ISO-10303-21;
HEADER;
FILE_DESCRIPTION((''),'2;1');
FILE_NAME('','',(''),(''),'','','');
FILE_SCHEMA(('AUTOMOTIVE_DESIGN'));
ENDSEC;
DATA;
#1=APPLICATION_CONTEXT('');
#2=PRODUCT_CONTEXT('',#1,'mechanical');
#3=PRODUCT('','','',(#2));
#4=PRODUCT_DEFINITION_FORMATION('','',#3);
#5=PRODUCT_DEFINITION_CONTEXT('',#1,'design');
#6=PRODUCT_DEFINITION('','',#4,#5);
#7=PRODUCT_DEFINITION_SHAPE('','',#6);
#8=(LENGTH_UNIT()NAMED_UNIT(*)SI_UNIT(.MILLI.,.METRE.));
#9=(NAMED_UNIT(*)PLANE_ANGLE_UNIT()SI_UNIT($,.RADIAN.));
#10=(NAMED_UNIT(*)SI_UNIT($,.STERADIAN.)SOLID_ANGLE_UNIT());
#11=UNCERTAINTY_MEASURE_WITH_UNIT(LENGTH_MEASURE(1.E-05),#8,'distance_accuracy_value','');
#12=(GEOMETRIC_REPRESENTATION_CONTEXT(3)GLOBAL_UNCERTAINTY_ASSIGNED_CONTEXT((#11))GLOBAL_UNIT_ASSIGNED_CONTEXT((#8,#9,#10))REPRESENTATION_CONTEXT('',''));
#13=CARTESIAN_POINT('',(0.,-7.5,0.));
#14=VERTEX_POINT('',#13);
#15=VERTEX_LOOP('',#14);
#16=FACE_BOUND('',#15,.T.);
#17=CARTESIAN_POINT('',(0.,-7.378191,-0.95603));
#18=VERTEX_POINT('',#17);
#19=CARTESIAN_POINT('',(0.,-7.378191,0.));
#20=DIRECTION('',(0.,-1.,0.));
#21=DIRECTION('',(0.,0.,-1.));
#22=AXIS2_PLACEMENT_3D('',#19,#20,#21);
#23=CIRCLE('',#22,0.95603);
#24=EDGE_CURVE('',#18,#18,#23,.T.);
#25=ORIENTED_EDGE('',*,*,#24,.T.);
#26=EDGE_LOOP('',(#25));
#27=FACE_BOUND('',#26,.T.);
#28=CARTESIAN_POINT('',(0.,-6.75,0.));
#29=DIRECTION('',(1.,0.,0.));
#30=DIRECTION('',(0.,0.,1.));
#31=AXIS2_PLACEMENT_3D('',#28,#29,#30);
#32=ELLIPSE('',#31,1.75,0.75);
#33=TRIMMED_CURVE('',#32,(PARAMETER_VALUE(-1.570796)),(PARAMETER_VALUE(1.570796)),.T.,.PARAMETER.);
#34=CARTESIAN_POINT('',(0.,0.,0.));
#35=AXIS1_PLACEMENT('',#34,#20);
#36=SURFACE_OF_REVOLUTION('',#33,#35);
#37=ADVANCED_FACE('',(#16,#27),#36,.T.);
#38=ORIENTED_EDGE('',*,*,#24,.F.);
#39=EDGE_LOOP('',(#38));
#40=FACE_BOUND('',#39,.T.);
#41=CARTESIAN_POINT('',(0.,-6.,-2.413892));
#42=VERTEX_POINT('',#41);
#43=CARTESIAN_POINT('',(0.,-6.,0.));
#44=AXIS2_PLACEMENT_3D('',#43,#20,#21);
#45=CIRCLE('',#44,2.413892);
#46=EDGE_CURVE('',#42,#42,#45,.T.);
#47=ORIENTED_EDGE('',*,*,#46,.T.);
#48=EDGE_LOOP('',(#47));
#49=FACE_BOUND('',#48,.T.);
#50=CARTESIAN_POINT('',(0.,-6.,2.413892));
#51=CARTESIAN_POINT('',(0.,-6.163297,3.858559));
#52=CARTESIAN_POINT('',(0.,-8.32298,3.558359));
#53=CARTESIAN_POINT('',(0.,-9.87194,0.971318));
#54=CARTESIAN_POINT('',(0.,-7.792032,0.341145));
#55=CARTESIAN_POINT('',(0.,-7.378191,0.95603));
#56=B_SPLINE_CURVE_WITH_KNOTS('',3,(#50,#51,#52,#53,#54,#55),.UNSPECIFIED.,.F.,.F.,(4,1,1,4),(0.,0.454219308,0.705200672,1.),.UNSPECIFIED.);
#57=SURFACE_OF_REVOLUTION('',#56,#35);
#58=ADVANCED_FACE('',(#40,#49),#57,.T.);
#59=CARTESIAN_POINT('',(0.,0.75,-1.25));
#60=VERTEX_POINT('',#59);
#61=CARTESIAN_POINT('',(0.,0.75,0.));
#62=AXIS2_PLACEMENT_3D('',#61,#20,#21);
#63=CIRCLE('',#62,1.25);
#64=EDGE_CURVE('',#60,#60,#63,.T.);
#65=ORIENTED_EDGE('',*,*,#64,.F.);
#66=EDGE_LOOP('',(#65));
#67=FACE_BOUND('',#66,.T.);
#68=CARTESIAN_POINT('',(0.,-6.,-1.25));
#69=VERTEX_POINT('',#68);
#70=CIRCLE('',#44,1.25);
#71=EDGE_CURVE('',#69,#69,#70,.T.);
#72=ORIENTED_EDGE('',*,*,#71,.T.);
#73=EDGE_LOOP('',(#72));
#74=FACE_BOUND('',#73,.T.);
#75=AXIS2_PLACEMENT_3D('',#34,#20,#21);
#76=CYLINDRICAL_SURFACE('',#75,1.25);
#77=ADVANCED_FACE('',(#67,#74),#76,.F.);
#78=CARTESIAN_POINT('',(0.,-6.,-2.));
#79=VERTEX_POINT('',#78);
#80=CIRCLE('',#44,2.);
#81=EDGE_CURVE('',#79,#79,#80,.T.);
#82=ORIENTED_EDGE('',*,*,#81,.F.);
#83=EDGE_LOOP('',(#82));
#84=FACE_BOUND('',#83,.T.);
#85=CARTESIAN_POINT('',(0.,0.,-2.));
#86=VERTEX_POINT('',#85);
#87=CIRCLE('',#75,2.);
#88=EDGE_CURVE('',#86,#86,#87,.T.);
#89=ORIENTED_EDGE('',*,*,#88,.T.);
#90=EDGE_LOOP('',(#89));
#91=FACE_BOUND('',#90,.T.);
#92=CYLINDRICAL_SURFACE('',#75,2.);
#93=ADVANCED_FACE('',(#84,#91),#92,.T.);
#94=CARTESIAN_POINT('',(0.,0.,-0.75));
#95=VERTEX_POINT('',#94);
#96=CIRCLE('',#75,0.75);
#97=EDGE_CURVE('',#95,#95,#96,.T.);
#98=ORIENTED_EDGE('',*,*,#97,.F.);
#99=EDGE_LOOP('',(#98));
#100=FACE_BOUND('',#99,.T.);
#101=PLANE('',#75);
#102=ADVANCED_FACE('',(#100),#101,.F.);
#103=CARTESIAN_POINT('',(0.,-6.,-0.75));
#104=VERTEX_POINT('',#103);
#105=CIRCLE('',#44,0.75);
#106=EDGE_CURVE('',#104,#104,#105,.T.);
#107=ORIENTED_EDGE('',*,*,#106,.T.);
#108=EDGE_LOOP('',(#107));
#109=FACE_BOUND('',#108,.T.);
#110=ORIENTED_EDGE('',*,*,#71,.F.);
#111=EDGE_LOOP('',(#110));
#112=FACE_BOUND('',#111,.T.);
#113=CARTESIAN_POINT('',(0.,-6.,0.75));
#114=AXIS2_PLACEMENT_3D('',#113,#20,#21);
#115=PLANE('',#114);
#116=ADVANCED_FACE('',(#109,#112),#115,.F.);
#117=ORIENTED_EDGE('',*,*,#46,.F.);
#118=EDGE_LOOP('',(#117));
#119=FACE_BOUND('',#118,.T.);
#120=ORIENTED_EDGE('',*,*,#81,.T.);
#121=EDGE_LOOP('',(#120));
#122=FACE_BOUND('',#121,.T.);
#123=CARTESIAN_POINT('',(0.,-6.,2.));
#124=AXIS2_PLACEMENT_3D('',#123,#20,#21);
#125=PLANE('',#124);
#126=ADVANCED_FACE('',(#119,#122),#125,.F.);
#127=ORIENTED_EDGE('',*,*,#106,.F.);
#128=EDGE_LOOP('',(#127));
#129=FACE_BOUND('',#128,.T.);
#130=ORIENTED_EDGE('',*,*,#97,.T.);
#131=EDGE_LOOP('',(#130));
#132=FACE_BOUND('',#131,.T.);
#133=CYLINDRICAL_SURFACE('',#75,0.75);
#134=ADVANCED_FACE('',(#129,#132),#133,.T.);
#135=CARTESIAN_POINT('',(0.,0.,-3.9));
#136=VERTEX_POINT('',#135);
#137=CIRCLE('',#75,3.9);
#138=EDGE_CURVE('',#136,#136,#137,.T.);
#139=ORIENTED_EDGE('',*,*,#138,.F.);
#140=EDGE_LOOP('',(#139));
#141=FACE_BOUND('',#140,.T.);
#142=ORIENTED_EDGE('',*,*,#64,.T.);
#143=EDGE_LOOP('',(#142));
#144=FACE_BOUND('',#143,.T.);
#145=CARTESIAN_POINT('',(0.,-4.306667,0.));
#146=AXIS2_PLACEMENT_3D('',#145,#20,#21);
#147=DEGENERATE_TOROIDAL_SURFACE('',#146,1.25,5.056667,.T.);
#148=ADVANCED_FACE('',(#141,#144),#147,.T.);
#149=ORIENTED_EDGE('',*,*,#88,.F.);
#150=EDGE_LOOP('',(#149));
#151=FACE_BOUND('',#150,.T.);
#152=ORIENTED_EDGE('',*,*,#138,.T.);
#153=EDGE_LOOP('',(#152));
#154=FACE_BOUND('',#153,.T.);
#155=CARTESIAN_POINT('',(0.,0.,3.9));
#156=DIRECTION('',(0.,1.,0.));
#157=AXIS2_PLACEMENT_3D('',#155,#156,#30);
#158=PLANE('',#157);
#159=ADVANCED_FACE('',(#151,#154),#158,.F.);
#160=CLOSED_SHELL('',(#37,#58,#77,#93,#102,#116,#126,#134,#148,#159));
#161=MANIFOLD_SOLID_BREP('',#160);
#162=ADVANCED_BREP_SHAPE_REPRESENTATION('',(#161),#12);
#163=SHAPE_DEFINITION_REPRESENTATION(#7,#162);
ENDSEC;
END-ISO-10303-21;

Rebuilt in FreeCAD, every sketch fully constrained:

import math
import FreeCAD as App
import Part
import Sketcher

doc = App.newDocument("Part")
params = doc.addObject("Spreadsheet::Sheet", "Params")
for row, (alias, value) in enumerate([
    ("sketch1_height", "0.5 mm"),
    ("sketch1_height2", "1.9 mm"),
    ("sketch1_width", "6.75 mm"),
    ("sketch1_height3", "0.75 mm"),
    ("revolution_angle", "360 deg"),
], start=1):
    params.set(f"A{row}", alias)
    params.set(f"B{row}", "=" + value)
    params.setAlias(f"B{row}", alias)

body = doc.addObject("PartDesign::Body", "Body")

sketch1 = body.newObject("Sketcher::SketchObject", "Sketch")
sketch1.AttachmentSupport = (doc.getObject("YZ_Plane"), [""])
sketch1.MapMode = "FlatFace"
sketch1.addGeometry([
    Part.LineSegment(App.Vector(-7.5, 0, 0), App.Vector(0, 0, 0)),
    Part.LineSegment(App.Vector(0, 0, 0), App.Vector(0, 0.75, 0)),
    Part.LineSegment(App.Vector(0, 0.75, 0), App.Vector(-6, 0.75, 0)),
    Part.LineSegment(App.Vector(-6, 0.75, 0), App.Vector(-6, 1.25, 0)),
    Part.LineSegment(App.Vector(-6, 1.25, 0), App.Vector(0.75, 1.25, 0)),
    Part.ArcOfCircle(Part.Circle(App.Vector(-4.306667, 1.25, 0), App.Vector(0, 0, 1), 5.056667), math.radians(0), math.radians(31.605028)),
    Part.LineSegment(App.Vector(0, 3.9, 0), App.Vector(0, 2, 0)),
    Part.LineSegment(App.Vector(0, 2, 0), App.Vector(-6, 2, 0)),
    Part.LineSegment(App.Vector(-6, 2, 0), App.Vector(-6, 2.413892, 0)),
    Part.BSplineCurve([App.Vector(-6, 2.413892, 0), App.Vector(-6.163297, 3.858559, 0), App.Vector(-8.32298, 3.558359, 0), App.Vector(-9.87194, 0.971318, 0), App.Vector(-7.792032, 0.341145, 0), App.Vector(-7.378191, 0.95603, 0)], [4, 1, 1, 4], [0, 0.454219308, 0.705200672, 1], False, 3, [1, 1, 1, 1, 1, 1], False),
    Part.BSplineCurve([App.Vector(-7.378191, 0.95603, 0), App.Vector(-7.5, 0.520264, 0), App.Vector(-7.5, 0, 0)], [3, 3], [0.992852221, 1.570796327], False, 2, [1, 0.958537313, 1], False),
], False)
sketch1.addConstraint([
    Sketcher.Constraint("Block", 9),
    Sketcher.Constraint("Block", 10),
    Sketcher.Constraint("Coincident", 0, 2, 1, 1),
    Sketcher.Constraint("Coincident", 1, 2, 2, 1),
    Sketcher.Constraint("Coincident", 2, 2, 3, 1),
    Sketcher.Constraint("Coincident", 3, 2, 4, 1),
    Sketcher.Constraint("Coincident", 4, 2, 5, 1),
    Sketcher.Constraint("Coincident", 5, 2, 6, 1),
    Sketcher.Constraint("Coincident", 6, 2, 7, 1),
    Sketcher.Constraint("Coincident", 7, 2, 8, 1),
    Sketcher.Constraint("Coincident", 8, 2, 9, 1),
    Sketcher.Constraint("Coincident", 10, 2, 0, 1),
    Sketcher.Constraint("Horizontal", 0),
    Sketcher.Constraint("Vertical", 1),
    Sketcher.Constraint("Horizontal", 2),
    Sketcher.Constraint("Vertical", 3),
    Sketcher.Constraint("Horizontal", 4),
    Sketcher.Constraint("Vertical", 6),
    Sketcher.Constraint("Horizontal", 7),
    Sketcher.Constraint("Vertical", 8),
    Sketcher.Constraint("PointOnObject", 1, 2, -2),
    Sketcher.Constraint("PointOnObject", 5, 2, -2),
    Sketcher.Constraint("Horizontal", 5, 3, 3, 2),
    Sketcher.Constraint("Vertical", 3, 2, 7, 2),
    Sketcher.Constraint("DistanceY", 3, 1, 3, 2, 0.5),
    Sketcher.Constraint("DistanceY", 6, 2, 6, 1, 1.9),
    Sketcher.Constraint("DistanceY", -1, 1, 6, 2, 2.0),
    Sketcher.Constraint("DistanceX", 4, 1, 4, 2, 6.75),
    Sketcher.Constraint("DistanceY", 1, 1, 1, 2, 0.75),
])
sketch1.setExpression("Constraints[24]", "Params.sketch1_height")
sketch1.setExpression("Constraints[25]", "Params.sketch1_height2")
sketch1.setExpression("Constraints[27]", "Params.sketch1_width")
sketch1.setExpression("Constraints[28]", "Params.sketch1_height3")
revolution = body.newObject("PartDesign::Revolution", "Revolution")
revolution.Profile = sketch1
revolution.ReferenceAxis = (sketch1, ["H_Axis"])
revolution.setExpression("Angle", "Params.revolution_angle")

doc.recompute()
